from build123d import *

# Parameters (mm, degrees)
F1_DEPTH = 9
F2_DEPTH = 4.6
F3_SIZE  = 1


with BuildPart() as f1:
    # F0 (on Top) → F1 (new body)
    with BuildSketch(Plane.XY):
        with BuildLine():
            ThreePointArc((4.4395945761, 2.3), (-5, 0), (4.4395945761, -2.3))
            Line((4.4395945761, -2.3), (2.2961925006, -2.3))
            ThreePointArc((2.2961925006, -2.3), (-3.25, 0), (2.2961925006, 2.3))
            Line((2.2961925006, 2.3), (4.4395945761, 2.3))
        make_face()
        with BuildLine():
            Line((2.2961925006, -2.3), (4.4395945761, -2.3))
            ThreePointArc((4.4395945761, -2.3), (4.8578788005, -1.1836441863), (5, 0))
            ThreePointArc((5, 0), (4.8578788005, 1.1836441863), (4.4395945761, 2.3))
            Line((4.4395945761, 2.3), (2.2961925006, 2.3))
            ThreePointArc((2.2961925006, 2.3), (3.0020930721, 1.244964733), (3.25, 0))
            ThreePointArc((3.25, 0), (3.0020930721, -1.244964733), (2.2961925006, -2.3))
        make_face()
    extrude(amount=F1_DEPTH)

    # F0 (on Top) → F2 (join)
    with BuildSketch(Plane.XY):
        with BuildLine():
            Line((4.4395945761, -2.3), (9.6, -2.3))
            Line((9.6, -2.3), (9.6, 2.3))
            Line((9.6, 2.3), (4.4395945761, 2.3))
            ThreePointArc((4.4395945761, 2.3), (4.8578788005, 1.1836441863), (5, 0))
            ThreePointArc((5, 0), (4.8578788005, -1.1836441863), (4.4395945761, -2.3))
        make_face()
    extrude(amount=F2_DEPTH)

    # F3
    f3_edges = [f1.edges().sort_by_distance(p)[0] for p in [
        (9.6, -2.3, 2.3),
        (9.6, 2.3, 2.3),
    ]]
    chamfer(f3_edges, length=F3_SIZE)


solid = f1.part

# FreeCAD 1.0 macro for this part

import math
import FreeCAD as App
import Part
import Sketcher


def edges_at(feature, points):
    """Names of the edges that pass closest to the given points."""
    edges = feature.Shape.Edges
    near = lambda p: min(range(len(edges)), key=lambda i: edges[i].distToShape(Part.Vertex(*p))[0])
    return sorted({f"Edge{near(p) + 1}" for p in points})

doc = App.newDocument("Part")
body = doc.addObject("PartDesign::Body", "Body")

# Sketch on XY plane
sketch1 = body.newObject("Sketcher::SketchObject", "Sketch")
sketch1.AttachmentSupport = (doc.getObject("XY_Plane"), [""])
sketch1.MapMode = "FlatFace"
sketch1.addGeometry([
    Part.Circle(App.Vector(0, 0, 0), App.Vector(0, 0, 1), 5),
    Part.ArcOfCircle(Part.Circle(App.Vector(0, 0, 0), App.Vector(0, 0, 1), 3.2), math.radians(45), math.radians(315)),
    Part.ArcOfCircle(Part.Circle(App.Vector(0, 0, 0), App.Vector(0, 0, 1), 3.2), math.radians(0), math.radians(45)),
    Part.ArcOfCircle(Part.Circle(App.Vector(0, 0, 0), App.Vector(0, 0, 1), 3.2), math.radians(-45), math.radians(0)),
], False)
sketch1.addConstraint([
    Sketcher.Constraint("Tangent", 1, 1, 2, 2),
    Sketcher.Constraint("Tangent", 2, 1, 3, 2),
    Sketcher.Constraint("Tangent", 3, 1, 1, 2),
    Sketcher.Constraint("Coincident", 0, 3, -1, 1),
    Sketcher.Constraint("Coincident", 1, 3, -1, 1),
    Sketcher.Constraint("PointOnObject", 2, 1, -1),
    Sketcher.Constraint("Vertical", 1, 1, 3, 1),
    Sketcher.Constraint("Diameter", 0, 10.0),
    Sketcher.Constraint("Radius", 1, 3.25),
    Sketcher.Constraint("DistanceY", -1, 1, 1, 1, 2.3),
])
pad1 = body.newObject("PartDesign::Pad", "Pad")
pad1.Profile = sketch1
pad1.Length = 9

# Sketch on XY plane
sketch2 = body.newObject("Sketcher::SketchObject", "Sketch001")
sketch2.AttachmentSupport = (doc.getObject("XY_Plane"), [""])
sketch2.MapMode = "FlatFace"
sketch2.addGeometry([
    Part.LineSegment(App.Vector(4.4, -2.3, 0), App.Vector(9.6, -2.3, 0)),  # 0
    Part.LineSegment(App.Vector(9.6, -2.3, 0), App.Vector(9.6, 2.3, 0)),  # 1
    Part.LineSegment(App.Vector(9.6, 2.3, 0), App.Vector(4.4, 2.3, 0)),  # 2
    Part.ArcOfCircle(Part.Circle(App.Vector(0, 0, 0), App.Vector(0, 0, 1), 5), math.radians(0), math.radians(27)),  # 3
    Part.ArcOfCircle(Part.Circle(App.Vector(0, 0, 0), App.Vector(0, 0, 1), 5), math.radians(-27), math.radians(0)),  # 4
], False)
sketch2.addConstraint([
    Sketcher.Constraint("Coincident", 0, 2, 1, 1),
    Sketcher.Constraint("Coincident", 1, 2, 2, 1),
    Sketcher.Constraint("Coincident", 2, 2, 3, 2),
    Sketcher.Constraint("Tangent", 3, 1, 4, 2),
    Sketcher.Constraint("Coincident", 4, 1, 0, 1),
    Sketcher.Constraint("Horizontal", 0),
    Sketcher.Constraint("Vertical", 1),
    Sketcher.Constraint("Horizontal", 2),
    Sketcher.Constraint("Coincident", 3, 3, -1, 1),
    Sketcher.Constraint("Equal", 3, 4),
    Sketcher.Constraint("PointOnObject", 3, 1, -1),
    Sketcher.Constraint("Vertical", 2, 2, 4, 1),
    Sketcher.Constraint("Radius", 3, 5.0),
    Sketcher.Constraint("DistanceY", 1, 1, 1, 2, 4.6),
    Sketcher.Constraint("DistanceX", -1, 1, 0, 2, 9.6),
])
pad2 = body.newObject("PartDesign::Pad", "Pad001")
pad2.Profile = sketch2
pad2.Length = 4.6
doc.recompute()

chamfer = body.newObject("PartDesign::Chamfer", "Chamfer")
chamfer.Base = (pad2, edges_at(pad2, [(9.6, -2.3, 2.3), (9.6, 2.3, 2.3)]))
chamfer.Size = 1

doc.recompute()
